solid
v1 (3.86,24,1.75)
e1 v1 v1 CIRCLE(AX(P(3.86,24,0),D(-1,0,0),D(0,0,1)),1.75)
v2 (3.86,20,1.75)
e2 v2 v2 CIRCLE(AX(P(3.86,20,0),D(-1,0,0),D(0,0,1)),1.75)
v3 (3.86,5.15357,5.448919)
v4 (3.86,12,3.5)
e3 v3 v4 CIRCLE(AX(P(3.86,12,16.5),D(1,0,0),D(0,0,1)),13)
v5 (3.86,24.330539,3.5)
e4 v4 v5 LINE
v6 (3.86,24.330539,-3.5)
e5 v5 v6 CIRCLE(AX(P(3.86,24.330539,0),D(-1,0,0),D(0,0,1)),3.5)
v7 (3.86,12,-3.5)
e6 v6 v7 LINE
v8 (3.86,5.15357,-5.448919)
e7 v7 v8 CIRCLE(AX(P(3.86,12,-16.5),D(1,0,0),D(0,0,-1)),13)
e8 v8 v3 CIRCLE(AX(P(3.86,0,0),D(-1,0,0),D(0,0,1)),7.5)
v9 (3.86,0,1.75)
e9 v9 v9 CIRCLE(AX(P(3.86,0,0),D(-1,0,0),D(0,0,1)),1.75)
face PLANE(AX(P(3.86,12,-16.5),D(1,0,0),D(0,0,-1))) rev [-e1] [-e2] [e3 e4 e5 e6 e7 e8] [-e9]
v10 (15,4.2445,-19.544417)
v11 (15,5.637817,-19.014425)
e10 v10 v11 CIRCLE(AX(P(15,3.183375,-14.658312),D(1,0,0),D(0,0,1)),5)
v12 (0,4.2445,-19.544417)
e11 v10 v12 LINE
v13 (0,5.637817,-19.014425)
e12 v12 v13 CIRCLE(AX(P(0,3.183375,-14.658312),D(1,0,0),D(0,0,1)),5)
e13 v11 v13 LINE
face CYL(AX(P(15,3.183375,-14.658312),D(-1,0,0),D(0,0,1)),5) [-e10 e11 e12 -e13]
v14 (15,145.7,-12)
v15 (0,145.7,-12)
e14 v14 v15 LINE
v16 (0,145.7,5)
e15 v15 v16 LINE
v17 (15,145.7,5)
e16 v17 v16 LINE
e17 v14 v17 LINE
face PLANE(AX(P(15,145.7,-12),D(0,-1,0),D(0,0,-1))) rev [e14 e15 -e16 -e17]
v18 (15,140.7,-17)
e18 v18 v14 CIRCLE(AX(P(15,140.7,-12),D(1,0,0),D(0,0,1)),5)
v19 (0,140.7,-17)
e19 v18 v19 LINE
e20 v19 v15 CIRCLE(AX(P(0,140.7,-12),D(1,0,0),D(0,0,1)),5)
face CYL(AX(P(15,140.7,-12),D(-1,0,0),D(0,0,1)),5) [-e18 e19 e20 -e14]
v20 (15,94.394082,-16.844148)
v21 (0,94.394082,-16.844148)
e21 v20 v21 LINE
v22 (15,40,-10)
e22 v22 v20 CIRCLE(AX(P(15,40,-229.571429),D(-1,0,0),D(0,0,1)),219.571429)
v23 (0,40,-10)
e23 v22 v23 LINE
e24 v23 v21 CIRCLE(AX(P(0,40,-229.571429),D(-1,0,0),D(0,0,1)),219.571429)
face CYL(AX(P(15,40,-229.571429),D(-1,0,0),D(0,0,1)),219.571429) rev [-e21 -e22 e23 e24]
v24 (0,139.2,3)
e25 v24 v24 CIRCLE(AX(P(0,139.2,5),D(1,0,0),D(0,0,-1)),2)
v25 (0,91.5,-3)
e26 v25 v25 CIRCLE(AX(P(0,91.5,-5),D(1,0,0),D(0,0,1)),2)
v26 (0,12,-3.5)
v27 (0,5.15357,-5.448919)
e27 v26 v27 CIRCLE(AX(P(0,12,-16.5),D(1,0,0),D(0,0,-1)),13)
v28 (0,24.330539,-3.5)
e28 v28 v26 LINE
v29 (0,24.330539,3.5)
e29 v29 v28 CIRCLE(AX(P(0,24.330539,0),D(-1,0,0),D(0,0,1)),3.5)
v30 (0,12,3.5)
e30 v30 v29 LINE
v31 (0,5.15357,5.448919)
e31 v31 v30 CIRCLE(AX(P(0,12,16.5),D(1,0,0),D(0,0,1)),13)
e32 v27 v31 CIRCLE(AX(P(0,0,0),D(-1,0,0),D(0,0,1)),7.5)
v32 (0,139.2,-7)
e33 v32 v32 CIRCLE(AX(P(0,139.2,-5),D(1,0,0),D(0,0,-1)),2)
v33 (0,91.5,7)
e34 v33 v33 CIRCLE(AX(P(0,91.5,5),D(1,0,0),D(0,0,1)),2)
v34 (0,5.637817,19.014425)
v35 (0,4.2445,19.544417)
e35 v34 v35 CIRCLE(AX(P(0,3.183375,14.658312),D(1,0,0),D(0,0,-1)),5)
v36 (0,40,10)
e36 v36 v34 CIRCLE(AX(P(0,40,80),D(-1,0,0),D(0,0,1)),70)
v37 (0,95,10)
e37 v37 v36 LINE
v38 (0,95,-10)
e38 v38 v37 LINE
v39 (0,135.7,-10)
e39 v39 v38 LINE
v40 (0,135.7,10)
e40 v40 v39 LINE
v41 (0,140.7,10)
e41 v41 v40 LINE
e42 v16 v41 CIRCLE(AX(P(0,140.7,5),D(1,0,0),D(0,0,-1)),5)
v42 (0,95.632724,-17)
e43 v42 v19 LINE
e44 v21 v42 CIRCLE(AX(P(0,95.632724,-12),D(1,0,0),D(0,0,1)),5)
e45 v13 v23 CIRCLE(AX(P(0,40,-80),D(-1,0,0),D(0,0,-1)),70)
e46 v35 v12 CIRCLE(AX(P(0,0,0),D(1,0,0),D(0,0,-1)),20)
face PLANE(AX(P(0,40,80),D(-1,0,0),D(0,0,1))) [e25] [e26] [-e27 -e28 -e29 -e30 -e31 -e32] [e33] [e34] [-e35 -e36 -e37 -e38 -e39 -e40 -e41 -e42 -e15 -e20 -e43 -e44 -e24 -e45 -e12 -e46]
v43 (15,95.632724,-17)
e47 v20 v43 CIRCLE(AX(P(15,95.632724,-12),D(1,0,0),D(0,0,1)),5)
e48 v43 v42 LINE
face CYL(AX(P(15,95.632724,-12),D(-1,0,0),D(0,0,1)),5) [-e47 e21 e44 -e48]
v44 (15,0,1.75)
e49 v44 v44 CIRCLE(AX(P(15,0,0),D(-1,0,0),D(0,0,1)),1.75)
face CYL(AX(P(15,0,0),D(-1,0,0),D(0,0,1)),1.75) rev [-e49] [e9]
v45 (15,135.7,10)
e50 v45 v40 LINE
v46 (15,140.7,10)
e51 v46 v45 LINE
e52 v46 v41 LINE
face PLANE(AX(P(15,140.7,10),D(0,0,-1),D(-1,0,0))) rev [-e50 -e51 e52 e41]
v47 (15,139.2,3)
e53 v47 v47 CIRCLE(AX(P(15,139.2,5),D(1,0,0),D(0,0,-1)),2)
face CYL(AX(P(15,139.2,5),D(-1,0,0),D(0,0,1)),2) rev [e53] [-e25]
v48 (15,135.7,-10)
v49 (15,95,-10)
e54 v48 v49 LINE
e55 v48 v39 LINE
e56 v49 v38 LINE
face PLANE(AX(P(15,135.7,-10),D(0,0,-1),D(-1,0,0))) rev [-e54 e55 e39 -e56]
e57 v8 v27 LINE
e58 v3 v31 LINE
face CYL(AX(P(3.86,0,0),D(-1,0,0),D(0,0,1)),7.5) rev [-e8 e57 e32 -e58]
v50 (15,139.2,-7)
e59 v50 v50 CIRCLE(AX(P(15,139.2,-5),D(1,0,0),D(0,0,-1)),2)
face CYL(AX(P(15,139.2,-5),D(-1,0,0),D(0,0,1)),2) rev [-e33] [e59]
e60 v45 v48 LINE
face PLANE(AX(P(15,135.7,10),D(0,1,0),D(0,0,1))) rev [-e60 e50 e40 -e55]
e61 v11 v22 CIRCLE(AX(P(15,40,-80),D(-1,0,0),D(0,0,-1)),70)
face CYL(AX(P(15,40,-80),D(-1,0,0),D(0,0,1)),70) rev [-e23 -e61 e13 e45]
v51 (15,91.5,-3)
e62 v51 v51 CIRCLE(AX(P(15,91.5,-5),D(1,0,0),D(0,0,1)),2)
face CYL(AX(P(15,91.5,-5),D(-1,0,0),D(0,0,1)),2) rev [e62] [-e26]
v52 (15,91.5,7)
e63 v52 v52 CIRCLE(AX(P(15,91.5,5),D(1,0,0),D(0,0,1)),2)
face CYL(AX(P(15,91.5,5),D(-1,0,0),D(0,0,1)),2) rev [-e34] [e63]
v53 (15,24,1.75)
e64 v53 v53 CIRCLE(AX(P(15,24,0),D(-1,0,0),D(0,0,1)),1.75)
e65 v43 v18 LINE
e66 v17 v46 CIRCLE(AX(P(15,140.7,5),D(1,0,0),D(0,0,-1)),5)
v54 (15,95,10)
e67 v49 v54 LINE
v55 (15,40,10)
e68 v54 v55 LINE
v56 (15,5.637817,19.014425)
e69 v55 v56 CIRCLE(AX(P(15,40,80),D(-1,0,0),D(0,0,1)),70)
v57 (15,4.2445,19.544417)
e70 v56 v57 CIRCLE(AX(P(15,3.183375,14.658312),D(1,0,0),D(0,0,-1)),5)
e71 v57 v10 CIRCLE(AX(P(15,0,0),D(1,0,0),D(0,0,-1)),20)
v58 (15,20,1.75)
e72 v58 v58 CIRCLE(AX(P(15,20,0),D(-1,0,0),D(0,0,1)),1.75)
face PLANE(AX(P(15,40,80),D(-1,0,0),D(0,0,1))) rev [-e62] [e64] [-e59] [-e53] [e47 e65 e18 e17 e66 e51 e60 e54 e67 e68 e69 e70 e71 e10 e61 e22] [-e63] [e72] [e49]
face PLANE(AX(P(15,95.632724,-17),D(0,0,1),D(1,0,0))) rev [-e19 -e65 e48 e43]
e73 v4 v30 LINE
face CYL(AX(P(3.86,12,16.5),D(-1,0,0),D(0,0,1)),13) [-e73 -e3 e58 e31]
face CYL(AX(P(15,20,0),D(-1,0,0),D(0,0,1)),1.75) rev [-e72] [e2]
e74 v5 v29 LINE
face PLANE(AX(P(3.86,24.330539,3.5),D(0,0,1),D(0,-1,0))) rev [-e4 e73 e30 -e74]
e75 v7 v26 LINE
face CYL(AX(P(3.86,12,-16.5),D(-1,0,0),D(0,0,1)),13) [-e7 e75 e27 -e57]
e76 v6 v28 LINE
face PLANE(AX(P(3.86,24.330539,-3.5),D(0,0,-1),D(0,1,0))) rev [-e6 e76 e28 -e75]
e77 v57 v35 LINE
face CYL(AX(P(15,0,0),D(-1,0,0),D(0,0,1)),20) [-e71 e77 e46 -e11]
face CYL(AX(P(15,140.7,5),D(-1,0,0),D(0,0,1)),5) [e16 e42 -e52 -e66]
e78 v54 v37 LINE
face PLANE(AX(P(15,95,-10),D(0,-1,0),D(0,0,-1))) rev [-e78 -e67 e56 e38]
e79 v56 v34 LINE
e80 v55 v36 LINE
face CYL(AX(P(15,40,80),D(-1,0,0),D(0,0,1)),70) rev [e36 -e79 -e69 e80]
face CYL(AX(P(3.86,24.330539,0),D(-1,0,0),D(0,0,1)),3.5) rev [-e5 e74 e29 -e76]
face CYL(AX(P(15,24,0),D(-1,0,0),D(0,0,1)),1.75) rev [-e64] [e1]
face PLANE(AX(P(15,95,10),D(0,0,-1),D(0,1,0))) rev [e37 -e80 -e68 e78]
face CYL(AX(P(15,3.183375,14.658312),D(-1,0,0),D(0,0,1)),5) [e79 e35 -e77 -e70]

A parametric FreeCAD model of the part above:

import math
import FreeCAD as App
import Part
import Sketcher
from FreeCAD import Vector

doc = App.newDocument("Part")
body = doc.addObject("PartDesign::Body", "Body")

sketch1 = body.newObject("Sketcher::SketchObject", "Sketch")
sketch1.AttachmentSupport = (doc.getObject("YZ_Plane"), [""])
sketch1.MapMode = "FlatFace"
sketch1.addGeometry([
    Part.LineSegment(Vector(95, 10, 0), Vector(40, 10, 0)),
    Part.ArcOfCircle(Part.Circle(Vector(40, 80, 0), Vector(0, 0, 1), 70), math.radians(-119), math.radians(-90)),
    Part.ArcOfCircle(Part.Circle(Vector(3.2, 14.7, 0), Vector(0, 0, 1), 5), math.radians(60.6), math.radians(77.75)),
    Part.ArcOfCircle(Part.Circle(Vector(0, 0, 0), Vector(0, 0, 1), 20), math.radians(78), math.radians(282)),
    Part.ArcOfCircle(Part.Circle(Vector(3.2, -14.7, 0), Vector(0, 0, 1), 5), math.radians(-77.75), math.radians(-60.6)),
    Part.ArcOfCircle(Part.Circle(Vector(40, -80, 0), Vector(0, 0, 1), 70), math.radians(90), math.radians(119)),
    Part.ArcOfCircle(Part.Circle(Vector(40, -229.6, 0), Vector(0, 0, 1), 219.6), math.radians(75.66), math.radians(90)),
    Part.ArcOfCircle(Part.Circle(Vector(95.6, -12, 0), Vector(0, 0, 1), 5), math.radians(-104.34), math.radians(-90)),
    Part.LineSegment(Vector(95.6, -17, 0), Vector(140.7, -17, 0)),
    Part.ArcOfCircle(Part.Circle(Vector(140.7, -12, 0), Vector(0, 0, 1), 5), math.radians(-90), math.radians(0)),
    Part.LineSegment(Vector(145.7, -12, 0), Vector(145.7, 5, 0)),
    Part.ArcOfCircle(Part.Circle(Vector(140.7, 5, 0), Vector(0, 0, 1), 5), math.radians(0), math.radians(90)),
    Part.LineSegment(Vector(140.7, 10, 0), Vector(135.7, 10, 0)),
    Part.LineSegment(Vector(135.7, 10, 0), Vector(135.7, -10, 0)),
    Part.LineSegment(Vector(135.7, -10, 0), Vector(95, -10, 0)),
    Part.LineSegment(Vector(95, -10, 0), Vector(95, 10, 0)),
    Part.Circle(Vector(91.5, -5, 0), Vector(0, 0, 1), 2),
    Part.Circle(Vector(139.2, -5, 0), Vector(0, 0, 1), 2),
    Part.Circle(Vector(91.5, 5, 0), Vector(0, 0, 1), 2),
    Part.Circle(Vector(139.2, 5, 0), Vector(0, 0, 1), 2),
], False)
sketch1.addConstraint([
    Sketcher.Constraint("Tangent", 0, 2, 1, 2),
    Sketcher.Constraint("Tangent", 1, 1, 2, 1),
    Sketcher.Constraint("Tangent", 2, 2, 3, 1),
    Sketcher.Constraint("Tangent", 3, 2, 4, 1),
    Sketcher.Constraint("Tangent", 4, 2, 5, 2),
    Sketcher.Constraint("Tangent", 5, 1, 6, 2),
    Sketcher.Constraint("Tangent", 6, 1, 7, 1),
    Sketcher.Constraint("Tangent", 7, 2, 8, 1),
    Sketcher.Constraint("Tangent", 8, 2, 9, 1),
    Sketcher.Constraint("Tangent", 9, 2, 10, 1),
    Sketcher.Constraint("Tangent", 10, 2, 11, 1),
    Sketcher.Constraint("Tangent", 11, 2, 12, 1),
    Sketcher.Constraint("Coincident", 12, 2, 13, 1),
    Sketcher.Constraint("Coincident", 13, 2, 14, 1),
    Sketcher.Constraint("Coincident", 14, 2, 15, 1),
    Sketcher.Constraint("Coincident", 15, 2, 0, 1),
    Sketcher.Constraint("Horizontal", 0),
    Sketcher.Constraint("Horizontal", 8),
    Sketcher.Constraint("Vertical", 10),
    Sketcher.Constraint("Horizontal", 12),
    Sketcher.Constraint("Vertical", 13),
    Sketcher.Constraint("Horizontal", 14),
    Sketcher.Constraint("Vertical", 15),
    Sketcher.Constraint("Coincident", 3, 3, -1, 1),
    Sketcher.Constraint("Equal", 2, 4),
    Sketcher.Constraint("Equal", 1, 5),
    Sketcher.Constraint("Equal", 4, 7),
    Sketcher.Constraint("Equal", 7, 9),
    Sketcher.Constraint("Equal", 9, 11),
    Sketcher.Constraint("Equal", 16, 17),
    Sketcher.Constraint("Equal", 17, 18),
    Sketcher.Constraint("Equal", 18, 19),
    Sketcher.Constraint("Symmetric", 1, 3, 5, 3, -1),
    Sketcher.Constraint("Symmetric", 16, 3, 18, 3, -1),
    Sketcher.Constraint("Symmetric", 17, 3, 19, 3, -1),
    Sketcher.Constraint("Horizontal", 16, 3, 17, 3),
    Sketcher.Constraint("Horizontal", 11, 3, 18, 3),
    Sketcher.Constraint("Horizontal", 0, 2, 11, 2),
    Sketcher.Constraint("Horizontal", 5, 1, 13, 2),
    Sketcher.Constraint("Vertical", 5, 3, 6, 3),
    Sketcher.Constraint("Diameter", 16, 4.0),
    Sketcher.Constraint("Radius", 1, 70.0),
    Sketcher.Constraint("Radius", 2, 5.0),
    Sketcher.Constraint("Radius", 3, 20.0),
    Sketcher.Constraint("DistanceX", 0, 2, 0, 1, 55.0),
    Sketcher.Constraint("DistanceX", 12, 2, 12, 1, 5.0),
    Sketcher.Constraint("DistanceY", 10, 1, 10, 2, 17.0),
    Sketcher.Constraint("DistanceY", 13, 2, 13, 1, 20.0),
    Sketcher.Constraint("DistanceX", 14, 2, 14, 1, 40.7),
    Sketcher.Constraint("DistanceX", -1, 1, 1, 3, 40.0),
    Sketcher.Constraint("DistanceX", -1, 1, 16, 3, 91.5),
    Sketcher.Constraint("DistanceX", -1, 1, 17, 3, 139.2),
    Sketcher.Constraint("Radius", 6, 219.571429),
])
pad1 = body.newObject("PartDesign::Pad", "Pad")
pad1.Profile = sketch1
pad1.Length = 15

sketch2 = body.newObject("Sketcher::SketchObject", "Sketch001")
sketch2.AttachmentSupport = (doc.getObject("YZ_Plane"), [""])
sketch2.MapMode = "FlatFace"
sketch2.addGeometry([
    Part.LineSegment(Vector(24.3, -3.5, 0), Vector(12, -3.5, 0)),
    Part.ArcOfCircle(Part.Circle(Vector(12, -16.5, 0), Vector(0, 0, 1), 13), math.radians(90), math.radians(122)),
    Part.ArcOfCircle(Part.Circle(Vector(0, 0, 0), Vector(0, 0, 1), 7.5), math.radians(47), math.radians(313)),
    Part.ArcOfCircle(Part.Circle(Vector(12, 16.5, 0), Vector(0, 0, 1), 13), math.radians(-122), math.radians(-90)),
    Part.LineSegment(Vector(12, 3.5, 0), Vector(24.3, 3.5, 0)),
    Part.ArcOfCircle(Part.Circle(Vector(24.3, 0, 0), Vector(0, 0, 1), 3.5), math.radians(-90), math.radians(90)),
], False)
sketch2.addConstraint([
    Sketcher.Constraint("Tangent", 0, 2, 1, 1),
    Sketcher.Constraint("Coincident", 1, 2, 2, 2),
    Sketcher.Constraint("Coincident", 2, 1, 3, 1),
    Sketcher.Constraint("Tangent", 3, 2, 4, 1),
    Sketcher.Constraint("Tangent", 4, 2, 5, 2),
    Sketcher.Constraint("Tangent", 5, 1, 0, 1),
    Sketcher.Constraint("Horizontal", 0),
    Sketcher.Constraint("Horizontal", 4),
    Sketcher.Constraint("Coincident", 2, 3, -1, 1),
    Sketcher.Constraint("Equal", 1, 3),
    Sketcher.Constraint("Symmetric", 1, 3, 3, 3, -1),
    Sketcher.Constraint("Radius", 1, 13.0),
    Sketcher.Constraint("Radius", 2, 7.5),
    Sketcher.Constraint("Radius", 5, 3.5),
    Sketcher.Constraint("DistanceX", -1, 1, 1, 3, 12.0),
    Sketcher.Constraint("DistanceX", 0, 2, 0, 1, 12.330539),
])
pocket1 = body.newObject("PartDesign::Pocket", "Pocket")
pocket1.Profile = sketch2
pocket1.Length = 3.86
pocket1.Reversed = True

sketch3 = body.newObject("Sketcher::SketchObject", "Sketch002")
sketch3.AttachmentSupport = (doc.getObject("YZ_Plane"), [""])
sketch3.MapMode = "FlatFace"
sketch3.AttachmentOffset = App.Placement(Vector(0, 0, 3.86), App.Rotation())
sketch3.addGeometry([
    Part.Circle(Vector(0, 0, 0), Vector(0, 0, 1), 1.8),
    Part.Circle(Vector(20, 0, 0), Vector(0, 0, 1), 1.8),
    Part.Circle(Vector(24, 0, 0), Vector(0, 0, 1), 1.8),
], False)
sketch3.addConstraint([
    Sketcher.Constraint("Coincident", 0, 3, -1, 1),
    Sketcher.Constraint("Equal", 0, 1),
    Sketcher.Constraint("Equal", 1, 2),
    Sketcher.Constraint("PointOnObject", 1, 3, -1),
    Sketcher.Constraint("PointOnObject", 2, 3, -1),
    Sketcher.Constraint("Diameter", 0, 3.5),
    Sketcher.Constraint("DistanceX", -1, 1, 1, 3, 20.0),
    Sketcher.Constraint("DistanceX", -1, 1, 2, 3, 24.0),
])
pocket2 = body.newObject("PartDesign::Pocket", "Pocket001")
pocket2.Profile = sketch3
pocket2.Type = "ThroughAll"
pocket2.Reversed = True

doc.recompute()
